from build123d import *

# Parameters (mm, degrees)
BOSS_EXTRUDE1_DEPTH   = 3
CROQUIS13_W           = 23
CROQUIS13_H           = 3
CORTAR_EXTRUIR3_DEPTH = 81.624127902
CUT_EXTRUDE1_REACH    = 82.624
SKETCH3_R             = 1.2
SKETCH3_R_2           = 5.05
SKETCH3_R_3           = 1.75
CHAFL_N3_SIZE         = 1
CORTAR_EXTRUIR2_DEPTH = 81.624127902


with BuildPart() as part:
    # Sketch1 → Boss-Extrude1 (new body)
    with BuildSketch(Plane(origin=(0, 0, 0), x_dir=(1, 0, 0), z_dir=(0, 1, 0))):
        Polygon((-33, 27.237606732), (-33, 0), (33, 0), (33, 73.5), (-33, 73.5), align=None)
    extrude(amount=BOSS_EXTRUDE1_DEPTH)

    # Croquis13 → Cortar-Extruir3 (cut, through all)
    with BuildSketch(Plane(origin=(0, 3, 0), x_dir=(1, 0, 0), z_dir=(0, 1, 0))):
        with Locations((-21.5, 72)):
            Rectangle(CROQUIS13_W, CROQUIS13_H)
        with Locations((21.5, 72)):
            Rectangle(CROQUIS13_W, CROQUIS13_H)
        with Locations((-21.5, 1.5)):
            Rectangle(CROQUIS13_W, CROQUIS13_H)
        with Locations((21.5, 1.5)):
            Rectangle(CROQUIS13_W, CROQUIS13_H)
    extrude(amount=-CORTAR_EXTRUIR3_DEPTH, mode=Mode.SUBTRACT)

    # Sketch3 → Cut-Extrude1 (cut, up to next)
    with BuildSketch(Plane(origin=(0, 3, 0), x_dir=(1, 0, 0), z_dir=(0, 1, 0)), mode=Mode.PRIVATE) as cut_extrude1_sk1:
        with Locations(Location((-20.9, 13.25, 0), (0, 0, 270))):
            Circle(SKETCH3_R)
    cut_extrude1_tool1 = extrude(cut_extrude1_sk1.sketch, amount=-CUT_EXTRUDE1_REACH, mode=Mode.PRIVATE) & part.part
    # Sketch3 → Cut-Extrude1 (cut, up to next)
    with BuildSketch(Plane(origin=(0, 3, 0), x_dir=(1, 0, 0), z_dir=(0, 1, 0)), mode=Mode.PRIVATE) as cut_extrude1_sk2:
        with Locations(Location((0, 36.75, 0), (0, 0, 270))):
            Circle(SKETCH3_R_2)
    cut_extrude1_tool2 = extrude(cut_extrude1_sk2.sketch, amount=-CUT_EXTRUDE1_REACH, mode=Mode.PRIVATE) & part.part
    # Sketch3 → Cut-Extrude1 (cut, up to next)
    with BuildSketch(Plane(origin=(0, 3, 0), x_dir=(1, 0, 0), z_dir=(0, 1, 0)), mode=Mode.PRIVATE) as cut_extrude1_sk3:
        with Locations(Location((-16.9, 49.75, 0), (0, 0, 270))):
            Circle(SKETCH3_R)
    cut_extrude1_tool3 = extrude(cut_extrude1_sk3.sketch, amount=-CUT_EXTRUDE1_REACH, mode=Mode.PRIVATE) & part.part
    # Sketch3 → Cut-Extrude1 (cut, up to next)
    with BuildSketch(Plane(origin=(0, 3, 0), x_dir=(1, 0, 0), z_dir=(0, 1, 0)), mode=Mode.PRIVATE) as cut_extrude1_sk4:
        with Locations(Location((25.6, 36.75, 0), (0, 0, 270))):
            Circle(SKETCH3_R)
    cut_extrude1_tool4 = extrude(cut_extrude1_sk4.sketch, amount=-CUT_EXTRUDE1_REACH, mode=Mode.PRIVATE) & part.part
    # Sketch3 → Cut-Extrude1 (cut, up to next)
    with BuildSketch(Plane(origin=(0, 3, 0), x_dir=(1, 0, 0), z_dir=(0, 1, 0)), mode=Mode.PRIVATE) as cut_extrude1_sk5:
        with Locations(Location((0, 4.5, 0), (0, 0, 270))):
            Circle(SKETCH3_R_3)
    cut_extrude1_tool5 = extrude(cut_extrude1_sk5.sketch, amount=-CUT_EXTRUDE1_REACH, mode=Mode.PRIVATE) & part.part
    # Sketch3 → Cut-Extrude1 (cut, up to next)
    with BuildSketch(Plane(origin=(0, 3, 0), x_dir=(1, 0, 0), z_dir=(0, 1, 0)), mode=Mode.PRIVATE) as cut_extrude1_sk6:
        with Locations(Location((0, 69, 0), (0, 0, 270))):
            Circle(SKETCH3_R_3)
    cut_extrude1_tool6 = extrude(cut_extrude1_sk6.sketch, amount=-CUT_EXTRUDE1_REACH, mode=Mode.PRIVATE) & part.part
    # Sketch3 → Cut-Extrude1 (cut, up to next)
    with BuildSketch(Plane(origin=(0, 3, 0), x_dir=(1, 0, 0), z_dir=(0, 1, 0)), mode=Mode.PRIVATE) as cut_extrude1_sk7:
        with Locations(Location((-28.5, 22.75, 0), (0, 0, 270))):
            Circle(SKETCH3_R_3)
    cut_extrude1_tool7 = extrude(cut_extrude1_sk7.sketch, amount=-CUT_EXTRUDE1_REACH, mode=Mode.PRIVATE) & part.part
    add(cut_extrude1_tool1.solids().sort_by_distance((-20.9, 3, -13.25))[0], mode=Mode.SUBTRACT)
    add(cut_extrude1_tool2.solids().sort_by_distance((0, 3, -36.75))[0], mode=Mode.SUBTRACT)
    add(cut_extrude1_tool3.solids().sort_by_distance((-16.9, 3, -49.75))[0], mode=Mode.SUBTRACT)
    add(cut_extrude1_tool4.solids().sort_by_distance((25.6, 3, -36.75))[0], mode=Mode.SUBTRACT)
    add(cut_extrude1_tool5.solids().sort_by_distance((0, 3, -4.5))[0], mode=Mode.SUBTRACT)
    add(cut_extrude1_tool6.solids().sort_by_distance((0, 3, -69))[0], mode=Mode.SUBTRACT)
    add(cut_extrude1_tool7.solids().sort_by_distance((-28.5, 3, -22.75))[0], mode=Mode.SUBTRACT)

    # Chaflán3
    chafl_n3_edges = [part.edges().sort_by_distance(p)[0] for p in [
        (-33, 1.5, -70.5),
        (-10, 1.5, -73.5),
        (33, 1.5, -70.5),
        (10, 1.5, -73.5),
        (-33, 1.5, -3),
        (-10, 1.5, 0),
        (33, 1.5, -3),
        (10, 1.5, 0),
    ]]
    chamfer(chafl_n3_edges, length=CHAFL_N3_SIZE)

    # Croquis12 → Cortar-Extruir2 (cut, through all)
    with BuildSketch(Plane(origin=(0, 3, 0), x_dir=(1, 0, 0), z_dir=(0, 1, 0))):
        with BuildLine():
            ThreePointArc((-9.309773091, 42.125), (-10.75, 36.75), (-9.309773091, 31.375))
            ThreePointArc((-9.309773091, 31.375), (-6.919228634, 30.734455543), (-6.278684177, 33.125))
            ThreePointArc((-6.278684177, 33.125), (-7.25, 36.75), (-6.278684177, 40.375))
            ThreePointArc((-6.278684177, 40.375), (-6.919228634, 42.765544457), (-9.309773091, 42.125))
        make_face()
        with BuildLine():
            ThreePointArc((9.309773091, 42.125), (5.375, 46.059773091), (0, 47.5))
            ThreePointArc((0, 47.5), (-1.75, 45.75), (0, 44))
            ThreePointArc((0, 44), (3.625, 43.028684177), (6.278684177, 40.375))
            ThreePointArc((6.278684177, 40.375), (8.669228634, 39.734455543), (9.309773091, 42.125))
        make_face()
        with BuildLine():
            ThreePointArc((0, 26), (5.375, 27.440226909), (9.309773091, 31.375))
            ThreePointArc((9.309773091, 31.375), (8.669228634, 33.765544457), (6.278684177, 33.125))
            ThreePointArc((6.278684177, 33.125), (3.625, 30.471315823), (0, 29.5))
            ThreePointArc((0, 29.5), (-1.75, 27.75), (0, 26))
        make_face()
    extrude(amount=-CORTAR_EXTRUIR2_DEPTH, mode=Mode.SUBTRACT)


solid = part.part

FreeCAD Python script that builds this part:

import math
import FreeCAD as App
import Part
import Sketcher
Q = App.Units.Quantity


def edges_at(feature, points):
    """Names of the edges that pass closest to the given points."""
    edges = feature.Shape.Edges
    near = lambda p: min(range(len(edges)), key=lambda i: edges[i].distToShape(Part.Vertex(*p))[0])
    return sorted({f"Edge{near(p) + 1}" for p in points})


def add_polygon(sketch, points):
    """Adds a closed chain of lines whose ends are joined by coincident constraints."""
    first, n = sketch.GeometryCount, len(points)
    for a, b in zip(points, points[1:] + points[:1]):
        sketch.addGeometry(Part.LineSegment(App.Vector(*a, 0), App.Vector(*b, 0)), False)
    for i in range(n):
        sketch.addConstraint(Sketcher.Constraint("Coincident", first + i, 2, first + (i + 1) % n, 1))

doc = App.newDocument("Part")
body = doc.addObject("PartDesign::Body", "Body")

# Sketch on XZ plane
sketch1 = doc.addObject("Sketcher::SketchObject", "Sketch")
body.addObject(sketch1)
sketch1.AttachmentSupport = (doc.XZ_Plane, [""])
sketch1.MapMode = "FlatFace"
add_polygon(sketch1, [(-33, 0), (33, 0), (33, -74), (-33, -74)])  # lines 0-3
sketch1.addConstraint(Sketcher.Constraint("Horizontal", 0))
sketch1.addConstraint(Sketcher.Constraint("Vertical", 1))
sketch1.addConstraint(Sketcher.Constraint("Horizontal", 2))
sketch1.addConstraint(Sketcher.Constraint("Vertical", 3))
sketch1.addConstraint(Sketcher.Constraint("Symmetric", 0, 2, 3, 2, -1, 1))
sketch1.addConstraint(Sketcher.Constraint("DistanceX", 0, 1, 0, 2, Q("66 mm")))
sketch1.addConstraint(Sketcher.Constraint("DistanceY", 1, 2, 1, 1, Q("73.5 mm")))
pad1 = doc.addObject("PartDesign::Pad", "Pad")
body.addObject(pad1)
pad1.Profile = sketch1
pad1.Length = 3
pad1.Reversed = True

# Sketch on XZ plane
sketch2 = doc.addObject("Sketcher::SketchObject", "Sketch001")
body.addObject(sketch2)
sketch2.AttachmentSupport = (doc.XZ_Plane, [""])
sketch2.MapMode = "FlatFace"
sketch2.AttachmentOffset = App.Placement(App.Vector(0, 0, -3), App.Rotation())
add_polygon(sketch2, [(-33, -73.5), (-33, -70.5), (-10, -70.5), (-10, -73.5)])  # lines 0-3
add_polygon(sketch2, [(10, -73.5), (10, -70.5), (33, -70.5), (33, -73.5)])  # lines 4-7
add_polygon(sketch2, [(-33, -3), (-33, 0), (-10, 0), (-10, -3)])  # lines 8-11
add_polygon(sketch2, [(10, -3), (10, 0), (33, 0), (33, -3)])  # lines 12-15
sketch2.addConstraint(Sketcher.Constraint("Vertical", 0))
sketch2.addConstraint(Sketcher.Constraint("Horizontal", 1))
sketch2.addConstraint(Sketcher.Constraint("Vertical", 2))
sketch2.addConstraint(Sketcher.Constraint("Horizontal", 3))
sketch2.addConstraint(Sketcher.Constraint("Vertical", 4))
sketch2.addConstraint(Sketcher.Constraint("Horizontal", 5))
sketch2.addConstraint(Sketcher.Constraint("Vertical", 6))
sketch2.addConstraint(Sketcher.Constraint("Horizontal", 7))
sketch2.addConstraint(Sketcher.Constraint("Vertical", 8))
sketch2.addConstraint(Sketcher.Constraint("Horizontal", 9))
sketch2.addConstraint(Sketcher.Constraint("Vertical", 10))
sketch2.addConstraint(Sketcher.Constraint("Horizontal", 11))
sketch2.addConstraint(Sketcher.Constraint("Vertical", 12))
sketch2.addConstraint(Sketcher.Constraint("Horizontal", 13))
sketch2.addConstraint(Sketcher.Constraint("Vertical", 14))
sketch2.addConstraint(Sketcher.Constraint("Horizontal", 15))
sketch2.addConstraint(Sketcher.Constraint("Symmetric", 9, 2, 12, 2, -1, 1))
sketch2.addConstraint(Sketcher.Constraint("Symmetric", 1, 2, 4, 2, -2))
sketch2.addConstraint(Sketcher.Constraint("Symmetric", 3, 2, 6, 2, -2))
sketch2.addConstraint(Sketcher.Constraint("Symmetric", 8, 2, 13, 2, -2))
sketch2.addConstraint(Sketcher.Constraint("Horizontal", 11, 2, 14, 2))
sketch2.addConstraint(Sketcher.Constraint("Vertical", 3, 2, 8, 2))
sketch2.addConstraint(Sketcher.Constraint("Vertical", 2, 2, 9, 2))
sketch2.addConstraint(Sketcher.Constraint("Equal", 6, 8))
sketch2.addConstraint(Sketcher.Constraint("DistanceX", 1, 1, 1, 2, Q("23 mm")))
sketch2.addConstraint(Sketcher.Constraint("DistanceY", 0, 1, 0, 2, Q("3 mm")))
sketch2.addConstraint(Sketcher.Constraint("DistanceX", 0, 2, -1, 1, Q("33 mm")))
sketch2.addConstraint(Sketcher.Constraint("DistanceY", 0, 2, -1, 1, Q("70.5 mm")))
pocket1 = doc.addObject("PartDesign::Pocket", "Pocket")
body.addObject(pocket1)
pocket1.Profile = sketch2
pocket1.Type = "ThroughAll"
pocket1.Reversed = True

# Sketch on XZ plane
sketch3 = doc.addObject("Sketcher::SketchObject", "Sketch002")
body.addObject(sketch3)
sketch3.AttachmentSupport = (doc.XZ_Plane, [""])
sketch3.MapMode = "FlatFace"
sketch3.AttachmentOffset = App.Placement(App.Vector(0, 0, -3), App.Rotation())
sketch3.addGeometry(Part.Circle(App.Vector(-20.9, -13.2, 0), App.Vector(0, 0, 1), 1.2), False)
sketch3.addConstraint(Sketcher.Constraint("Diameter", 0, Q("2.4 mm")))
sketch3.addConstraint(Sketcher.Constraint("DistanceX", 0, 3, -1, 1, Q("20.9 mm")))
sketch3.addConstraint(Sketcher.Constraint("DistanceY", 0, 3, -1, 1, Q("13.25 mm")))
pocket2 = doc.addObject("PartDesign::Pocket", "Pocket001")
body.addObject(pocket2)
pocket2.Profile = sketch3
pocket2.Type = "UpToFirst"
pocket2.Reversed = True

# Sketch on XZ plane
sketch4 = doc.addObject("Sketcher::SketchObject", "Sketch003")
body.addObject(sketch4)
sketch4.AttachmentSupport = (doc.XZ_Plane, [""])
sketch4.MapMode = "FlatFace"
sketch4.AttachmentOffset = App.Placement(App.Vector(0, 0, -3), App.Rotation())
sketch4.addGeometry(Part.Circle(App.Vector(0, -37, 0), App.Vector(0, 0, 1), 5), False)
sketch4.addConstraint(Sketcher.Constraint("PointOnObject", 0, 3, -2))
sketch4.addConstraint(Sketcher.Constraint("Diameter", 0, Q("10.1 mm")))
sketch4.addConstraint(Sketcher.Constraint("DistanceY", 0, 3, -1, 1, Q("36.75 mm")))
pocket3 = doc.addObject("PartDesign::Pocket", "Pocket002")
body.addObject(pocket3)
pocket3.Profile = sketch4
pocket3.Type = "UpToFirst"
pocket3.Reversed = True

# Sketch on XZ plane
sketch5 = doc.addObject("Sketcher::SketchObject", "Sketch004")
body.addObject(sketch5)
sketch5.AttachmentSupport = (doc.XZ_Plane, [""])
sketch5.MapMode = "FlatFace"
sketch5.AttachmentOffset = App.Placement(App.Vector(0, 0, -3), App.Rotation())
sketch5.addGeometry(Part.Circle(App.Vector(-16.9, -49.8, 0), App.Vector(0, 0, 1), 1.2), False)
sketch5.addConstraint(Sketcher.Constraint("Diameter", 0, Q("2.4 mm")))
sketch5.addConstraint(Sketcher.Constraint("DistanceX", 0, 3, -1, 1, Q("16.9 mm")))
sketch5.addConstraint(Sketcher.Constraint("DistanceY", 0, 3, -1, 1, Q("49.75 mm")))
pocket4 = doc.addObject("PartDesign::Pocket", "Pocket003")
body.addObject(pocket4)
pocket4.Profile = sketch5
pocket4.Type = "UpToFirst"
pocket4.Reversed = True

# Sketch on XZ plane
sketch6 = doc.addObject("Sketcher::SketchObject", "Sketch005")
body.addObject(sketch6)
sketch6.AttachmentSupport = (doc.XZ_Plane, [""])
sketch6.MapMode = "FlatFace"
sketch6.AttachmentOffset = App.Placement(App.Vector(0, 0, -3), App.Rotation())
sketch6.addGeometry(Part.Circle(App.Vector(25.6, -36.8, 0), App.Vector(0, 0, 1), 1.2), False)
sketch6.addConstraint(Sketcher.Constraint("Diameter", 0, Q("2.4 mm")))
sketch6.addConstraint(Sketcher.Constraint("DistanceX", -1, 1, 0, 3, Q("25.6 mm")))
sketch6.addConstraint(Sketcher.Constraint("DistanceY", 0, 3, -1, 1, Q("36.75 mm")))
pocket5 = doc.addObject("PartDesign::Pocket", "Pocket004")
body.addObject(pocket5)
pocket5.Profile = sketch6
pocket5.Type = "UpToFirst"
pocket5.Reversed = True

# Sketch on XZ plane
sketch7 = doc.addObject("Sketcher::SketchObject", "Sketch006")
body.addObject(sketch7)
sketch7.AttachmentSupport = (doc.XZ_Plane, [""])
sketch7.MapMode = "FlatFace"
sketch7.AttachmentOffset = App.Placement(App.Vector(0, 0, -3), App.Rotation())
sketch7.addGeometry(Part.Circle(App.Vector(0, -4.5, 0), App.Vector(0, 0, 1), 1.8), False)
sketch7.addConstraint(Sketcher.Constraint("PointOnObject", 0, 3, -2))
sketch7.addConstraint(Sketcher.Constraint("Diameter", 0, Q("3.5 mm")))
sketch7.addConstraint(Sketcher.Constraint("DistanceY", 0, 3, -1, 1, Q("4.5 mm")))
pocket6 = doc.addObject("PartDesign::Pocket", "Pocket005")
body.addObject(pocket6)
pocket6.Profile = sketch7
pocket6.Type = "UpToFirst"
pocket6.Reversed = True

# Sketch on XZ plane
sketch8 = doc.addObject("Sketcher::SketchObject", "Sketch007")
body.addObject(sketch8)
sketch8.AttachmentSupport = (doc.XZ_Plane, [""])
sketch8.MapMode = "FlatFace"
sketch8.AttachmentOffset = App.Placement(App.Vector(0, 0, -3), App.Rotation())
sketch8.addGeometry(Part.Circle(App.Vector(0, -69, 0), App.Vector(0, 0, 1), 1.8), False)
sketch8.addConstraint(Sketcher.Constraint("PointOnObject", 0, 3, -2))
sketch8.addConstraint(Sketcher.Constraint("Diameter", 0, Q("3.5 mm")))
sketch8.addConstraint(Sketcher.Constraint("DistanceY", 0, 3, -1, 1, Q("69 mm")))
pocket7 = doc.addObject("PartDesign::Pocket", "Pocket006")
body.addObject(pocket7)
pocket7.Profile = sketch8
pocket7.Type = "UpToFirst"
pocket7.Reversed = True

# Sketch on XZ plane
sketch9 = doc.addObject("Sketcher::SketchObject", "Sketch008")
body.addObject(sketch9)
sketch9.AttachmentSupport = (doc.XZ_Plane, [""])
sketch9.MapMode = "FlatFace"
sketch9.AttachmentOffset = App.Placement(App.Vector(0, 0, -3), App.Rotation())
sketch9.addGeometry(Part.Circle(App.Vector(-28.5, -22.8, 0), App.Vector(0, 0, 1), 1.8), False)
sketch9.addConstraint(Sketcher.Constraint("Diameter", 0, Q("3.5 mm")))
sketch9.addConstraint(Sketcher.Constraint("DistanceX", 0, 3, -1, 1, Q("28.5 mm")))
sketch9.addConstraint(Sketcher.Constraint("DistanceY", 0, 3, -1, 1, Q("22.75 mm")))
pocket8 = doc.addObject("PartDesign::Pocket", "Pocket007")
body.addObject(pocket8)
pocket8.Profile = sketch9
pocket8.Type = "UpToFirst"
pocket8.Reversed = True
doc.recompute()

chamfer = doc.addObject("PartDesign::Chamfer", "Chamfer")
body.addObject(chamfer)
chamfer.Base = (pocket8, edges_at(pocket8, [
    (-33, 1.5, -70.5),
    (-10, 1.5, -73.5),
    (33, 1.5, -70.5),
    (10, 1.5, -73.5),
    (-33, 1.5, -3),
    (-10, 1.5, 0),
    (33, 1.5, -3),
    (10, 1.5, 0),
]))
chamfer.Size = 1

# Sketch on XZ plane
sketch10 = doc.addObject("Sketcher::SketchObject", "Sketch009")
body.addObject(sketch10)
sketch10.AttachmentSupport = (doc.XZ_Plane, [""])
sketch10.MapMode = "FlatFace"
sketch10.AttachmentOffset = App.Placement(App.Vector(0, 0, -3), App.Rotation())
sketch10.addGeometry(Part.ArcOfCircle(Part.Circle(App.Vector(0, -36.8, 0), App.Vector(0, 0, 1), 10.8), math.radians(150), math.radians(210)), False)
sketch10.addGeometry(Part.ArcOfCircle(Part.Circle(App.Vector(-7.8, -32.2, 0), App.Vector(0, 0, 1), 1.8), math.radians(-30), math.radians(150)), False)
sketch10.addGeometry(Part.ArcOfCircle(Part.Circle(App.Vector(0, -36.8, 0), App.Vector(0, 0, 1), 7.2), math.radians(150), math.radians(210)), False)
sketch10.addGeometry(Part.ArcOfCircle(Part.Circle(App.Vector(-7.8, -41.2, 0), App.Vector(0, 0, 1), 1.8), math.radians(-150), math.radians(30)), False)
sketch10.addGeometry(Part.ArcOfCircle(Part.Circle(App.Vector(0, -36.8, 0), App.Vector(0, 0, 1), 10.7), math.radians(-90), math.radians(-30)), False)
sketch10.addGeometry(Part.ArcOfCircle(Part.Circle(App.Vector(0, -45.8, 0), App.Vector(0, 0, 1), 1.8), math.radians(90), math.radians(270)), False)
sketch10.addGeometry(Part.ArcOfCircle(Part.Circle(App.Vector(0, -36.7, 0), App.Vector(0, 0, 1), 7.3), math.radians(-90), math.radians(-30)), False)
sketch10.addGeometry(Part.ArcOfCircle(Part.Circle(App.Vector(7.8, -41.2, 0), App.Vector(0, 0, 1), 1.8), math.radians(-30), math.radians(150)), False)
sketch10.addGeometry(Part.ArcOfCircle(Part.Circle(App.Vector(0, -36.7, 0), App.Vector(0, 0, 1), 10.7), math.radians(30), math.radians(90)), False)
sketch10.addGeometry(Part.ArcOfCircle(Part.Circle(App.Vector(7.8, -32.2, 0), App.Vector(0, 0, 1), 1.8), math.radians(-150), math.radians(30)), False)
sketch10.addGeometry(Part.ArcOfCircle(Part.Circle(App.Vector(0, -36.8, 0), App.Vector(0, 0, 1), 7.3), math.radians(30), math.radians(90)), False)
sketch10.addGeometry(Part.ArcOfCircle(Part.Circle(App.Vector(0, -27.8, 0), App.Vector(0, 0, 1), 1.8), math.radians(90), math.radians(270)), False)
sketch10.addConstraint(Sketcher.Constraint("Tangent", 0, 1, 1, 2))
sketch10.addConstraint(Sketcher.Constraint("Tangent", 1, 1, 2, 1))
sketch10.addConstraint(Sketcher.Constraint("Tangent", 2, 2, 3, 2))
sketch10.addConstraint(Sketcher.Constraint("Tangent", 3, 1, 0, 2))
sketch10.addConstraint(Sketcher.Constraint("Tangent", 4, 1, 5, 2))
sketch10.addConstraint(Sketcher.Constraint("Tangent", 5, 1, 6, 1))
sketch10.addConstraint(Sketcher.Constraint("Tangent", 6, 2, 7, 2))
sketch10.addConstraint(Sketcher.Constraint("Tangent", 7, 1, 4, 2))
sketch10.addConstraint(Sketcher.Constraint("Tangent", 8, 1, 9, 2))
sketch10.addConstraint(Sketcher.Constraint("Tangent", 9, 1, 10, 1))
sketch10.addConstraint(Sketcher.Constraint("Tangent", 10, 2, 11, 2))
sketch10.addConstraint(Sketcher.Constraint("Tangent", 11, 1, 8, 2))
sketch10.addConstraint(Sketcher.Constraint("Coincident", 2, 3, 0, 3))
sketch10.addConstraint(Sketcher.Constraint("Coincident", 4, 3, 0, 3))
sketch10.addConstraint(Sketcher.Constraint("Coincident", 6, 3, 0, 3))
sketch10.addConstraint(Sketcher.Constraint("Coincident", 8, 3, 0, 3))
sketch10.addConstraint(Sketcher.Constraint("Coincident", 10, 3, 0, 3))
sketch10.addConstraint(Sketcher.Constraint("Equal", 0, 4))
sketch10.addConstraint(Sketcher.Constraint("Equal", 3, 5))
sketch10.addConstraint(Sketcher.Constraint("Equal", 4, 8))
sketch10.addConstraint(Sketcher.Constraint("Equal", 7, 9))
sketch10.addConstraint(Sketcher.Constraint("Symmetric", 3, 3, 7, 3, -2))
sketch10.addConstraint(Sketcher.Constraint("PointOnObject", 5, 3, -2))
sketch10.addConstraint(Sketcher.Constraint("PointOnObject", 11, 3, -2))
sketch10.addConstraint(Sketcher.Constraint("Horizontal", 1, 3, 9, 3))
sketch10.addConstraint(Sketcher.Constraint("Vertical", 1, 3, 3, 3))
sketch10.addConstraint(Sketcher.Constraint("Radius", 0, Q("10.75 mm")))
sketch10.addConstraint(Sketcher.Constraint("Radius", 1, Q("1.75 mm")))
sketch10.addConstraint(Sketcher.Constraint("DistanceY", 5, 1, -1, 1, Q("44 mm")))
sketch10.addConstraint(Sketcher.Constraint("DistanceY", 3, 3, 1, 3, Q("9 mm")))
pocket9 = doc.addObject("PartDesign::Pocket", "Pocket008")
body.addObject(pocket9)
pocket9.Profile = sketch10
pocket9.Type = "ThroughAll"
pocket9.Reversed = True

doc.recompute()
